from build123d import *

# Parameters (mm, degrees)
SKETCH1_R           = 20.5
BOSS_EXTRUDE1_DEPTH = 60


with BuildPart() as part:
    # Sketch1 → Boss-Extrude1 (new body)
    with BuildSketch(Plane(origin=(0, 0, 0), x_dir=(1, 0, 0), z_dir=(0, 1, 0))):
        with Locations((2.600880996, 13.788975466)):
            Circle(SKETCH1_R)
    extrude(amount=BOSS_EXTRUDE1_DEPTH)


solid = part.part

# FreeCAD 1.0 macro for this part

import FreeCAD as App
import Part
import Sketcher
from FreeCAD import Vector
Q = App.Units.Quantity

doc = App.newDocument("Part")
params = doc.addObject("Spreadsheet::Sheet", "Params")
for row, (alias, value) in enumerate([
    ("sketch1_diameter", "41 mm"),
    ("pad1_length", "60 mm"),
], start=1):
    params.set(f"A{row}", alias)
    params.set(f"B{row}", "=" + value)
    params.setAlias(f"B{row}", alias)

body = doc.addObject("PartDesign::Body", "Body")

# Sketch on XZ plane
sketch1 = doc.addObject("Sketcher::SketchObject", "Sketch")
body.addObject(sketch1)
sketch1.AttachmentSupport = (doc.XZ_Plane, [""])
sketch1.MapMode = "FlatFace"
sketch1.addGeometry(Part.Circle(Vector(3, -14, 0), Vector(0, 0, 1), 20), False)
sketch1.addConstraint([
    Sketcher.Constraint("Diameter", 0, Q("41 mm")),
    Sketcher.Constraint("DistanceX", -1, 1, 0, 3, Q("2.600881 mm")),
    Sketcher.Constraint("DistanceY", 0, 3, -1, 1, Q("13.788975 mm")),
])
sketch1.setExpression("Constraints[0]", "Params.sketch1_diameter")
pad1 = doc.addObject("PartDesign::Pad", "Pad")
body.addObject(pad1)
pad1.Profile = sketch1
pad1.setExpression("Length", "Params.pad1_length")
pad1.Reversed = True

doc.recompute()
